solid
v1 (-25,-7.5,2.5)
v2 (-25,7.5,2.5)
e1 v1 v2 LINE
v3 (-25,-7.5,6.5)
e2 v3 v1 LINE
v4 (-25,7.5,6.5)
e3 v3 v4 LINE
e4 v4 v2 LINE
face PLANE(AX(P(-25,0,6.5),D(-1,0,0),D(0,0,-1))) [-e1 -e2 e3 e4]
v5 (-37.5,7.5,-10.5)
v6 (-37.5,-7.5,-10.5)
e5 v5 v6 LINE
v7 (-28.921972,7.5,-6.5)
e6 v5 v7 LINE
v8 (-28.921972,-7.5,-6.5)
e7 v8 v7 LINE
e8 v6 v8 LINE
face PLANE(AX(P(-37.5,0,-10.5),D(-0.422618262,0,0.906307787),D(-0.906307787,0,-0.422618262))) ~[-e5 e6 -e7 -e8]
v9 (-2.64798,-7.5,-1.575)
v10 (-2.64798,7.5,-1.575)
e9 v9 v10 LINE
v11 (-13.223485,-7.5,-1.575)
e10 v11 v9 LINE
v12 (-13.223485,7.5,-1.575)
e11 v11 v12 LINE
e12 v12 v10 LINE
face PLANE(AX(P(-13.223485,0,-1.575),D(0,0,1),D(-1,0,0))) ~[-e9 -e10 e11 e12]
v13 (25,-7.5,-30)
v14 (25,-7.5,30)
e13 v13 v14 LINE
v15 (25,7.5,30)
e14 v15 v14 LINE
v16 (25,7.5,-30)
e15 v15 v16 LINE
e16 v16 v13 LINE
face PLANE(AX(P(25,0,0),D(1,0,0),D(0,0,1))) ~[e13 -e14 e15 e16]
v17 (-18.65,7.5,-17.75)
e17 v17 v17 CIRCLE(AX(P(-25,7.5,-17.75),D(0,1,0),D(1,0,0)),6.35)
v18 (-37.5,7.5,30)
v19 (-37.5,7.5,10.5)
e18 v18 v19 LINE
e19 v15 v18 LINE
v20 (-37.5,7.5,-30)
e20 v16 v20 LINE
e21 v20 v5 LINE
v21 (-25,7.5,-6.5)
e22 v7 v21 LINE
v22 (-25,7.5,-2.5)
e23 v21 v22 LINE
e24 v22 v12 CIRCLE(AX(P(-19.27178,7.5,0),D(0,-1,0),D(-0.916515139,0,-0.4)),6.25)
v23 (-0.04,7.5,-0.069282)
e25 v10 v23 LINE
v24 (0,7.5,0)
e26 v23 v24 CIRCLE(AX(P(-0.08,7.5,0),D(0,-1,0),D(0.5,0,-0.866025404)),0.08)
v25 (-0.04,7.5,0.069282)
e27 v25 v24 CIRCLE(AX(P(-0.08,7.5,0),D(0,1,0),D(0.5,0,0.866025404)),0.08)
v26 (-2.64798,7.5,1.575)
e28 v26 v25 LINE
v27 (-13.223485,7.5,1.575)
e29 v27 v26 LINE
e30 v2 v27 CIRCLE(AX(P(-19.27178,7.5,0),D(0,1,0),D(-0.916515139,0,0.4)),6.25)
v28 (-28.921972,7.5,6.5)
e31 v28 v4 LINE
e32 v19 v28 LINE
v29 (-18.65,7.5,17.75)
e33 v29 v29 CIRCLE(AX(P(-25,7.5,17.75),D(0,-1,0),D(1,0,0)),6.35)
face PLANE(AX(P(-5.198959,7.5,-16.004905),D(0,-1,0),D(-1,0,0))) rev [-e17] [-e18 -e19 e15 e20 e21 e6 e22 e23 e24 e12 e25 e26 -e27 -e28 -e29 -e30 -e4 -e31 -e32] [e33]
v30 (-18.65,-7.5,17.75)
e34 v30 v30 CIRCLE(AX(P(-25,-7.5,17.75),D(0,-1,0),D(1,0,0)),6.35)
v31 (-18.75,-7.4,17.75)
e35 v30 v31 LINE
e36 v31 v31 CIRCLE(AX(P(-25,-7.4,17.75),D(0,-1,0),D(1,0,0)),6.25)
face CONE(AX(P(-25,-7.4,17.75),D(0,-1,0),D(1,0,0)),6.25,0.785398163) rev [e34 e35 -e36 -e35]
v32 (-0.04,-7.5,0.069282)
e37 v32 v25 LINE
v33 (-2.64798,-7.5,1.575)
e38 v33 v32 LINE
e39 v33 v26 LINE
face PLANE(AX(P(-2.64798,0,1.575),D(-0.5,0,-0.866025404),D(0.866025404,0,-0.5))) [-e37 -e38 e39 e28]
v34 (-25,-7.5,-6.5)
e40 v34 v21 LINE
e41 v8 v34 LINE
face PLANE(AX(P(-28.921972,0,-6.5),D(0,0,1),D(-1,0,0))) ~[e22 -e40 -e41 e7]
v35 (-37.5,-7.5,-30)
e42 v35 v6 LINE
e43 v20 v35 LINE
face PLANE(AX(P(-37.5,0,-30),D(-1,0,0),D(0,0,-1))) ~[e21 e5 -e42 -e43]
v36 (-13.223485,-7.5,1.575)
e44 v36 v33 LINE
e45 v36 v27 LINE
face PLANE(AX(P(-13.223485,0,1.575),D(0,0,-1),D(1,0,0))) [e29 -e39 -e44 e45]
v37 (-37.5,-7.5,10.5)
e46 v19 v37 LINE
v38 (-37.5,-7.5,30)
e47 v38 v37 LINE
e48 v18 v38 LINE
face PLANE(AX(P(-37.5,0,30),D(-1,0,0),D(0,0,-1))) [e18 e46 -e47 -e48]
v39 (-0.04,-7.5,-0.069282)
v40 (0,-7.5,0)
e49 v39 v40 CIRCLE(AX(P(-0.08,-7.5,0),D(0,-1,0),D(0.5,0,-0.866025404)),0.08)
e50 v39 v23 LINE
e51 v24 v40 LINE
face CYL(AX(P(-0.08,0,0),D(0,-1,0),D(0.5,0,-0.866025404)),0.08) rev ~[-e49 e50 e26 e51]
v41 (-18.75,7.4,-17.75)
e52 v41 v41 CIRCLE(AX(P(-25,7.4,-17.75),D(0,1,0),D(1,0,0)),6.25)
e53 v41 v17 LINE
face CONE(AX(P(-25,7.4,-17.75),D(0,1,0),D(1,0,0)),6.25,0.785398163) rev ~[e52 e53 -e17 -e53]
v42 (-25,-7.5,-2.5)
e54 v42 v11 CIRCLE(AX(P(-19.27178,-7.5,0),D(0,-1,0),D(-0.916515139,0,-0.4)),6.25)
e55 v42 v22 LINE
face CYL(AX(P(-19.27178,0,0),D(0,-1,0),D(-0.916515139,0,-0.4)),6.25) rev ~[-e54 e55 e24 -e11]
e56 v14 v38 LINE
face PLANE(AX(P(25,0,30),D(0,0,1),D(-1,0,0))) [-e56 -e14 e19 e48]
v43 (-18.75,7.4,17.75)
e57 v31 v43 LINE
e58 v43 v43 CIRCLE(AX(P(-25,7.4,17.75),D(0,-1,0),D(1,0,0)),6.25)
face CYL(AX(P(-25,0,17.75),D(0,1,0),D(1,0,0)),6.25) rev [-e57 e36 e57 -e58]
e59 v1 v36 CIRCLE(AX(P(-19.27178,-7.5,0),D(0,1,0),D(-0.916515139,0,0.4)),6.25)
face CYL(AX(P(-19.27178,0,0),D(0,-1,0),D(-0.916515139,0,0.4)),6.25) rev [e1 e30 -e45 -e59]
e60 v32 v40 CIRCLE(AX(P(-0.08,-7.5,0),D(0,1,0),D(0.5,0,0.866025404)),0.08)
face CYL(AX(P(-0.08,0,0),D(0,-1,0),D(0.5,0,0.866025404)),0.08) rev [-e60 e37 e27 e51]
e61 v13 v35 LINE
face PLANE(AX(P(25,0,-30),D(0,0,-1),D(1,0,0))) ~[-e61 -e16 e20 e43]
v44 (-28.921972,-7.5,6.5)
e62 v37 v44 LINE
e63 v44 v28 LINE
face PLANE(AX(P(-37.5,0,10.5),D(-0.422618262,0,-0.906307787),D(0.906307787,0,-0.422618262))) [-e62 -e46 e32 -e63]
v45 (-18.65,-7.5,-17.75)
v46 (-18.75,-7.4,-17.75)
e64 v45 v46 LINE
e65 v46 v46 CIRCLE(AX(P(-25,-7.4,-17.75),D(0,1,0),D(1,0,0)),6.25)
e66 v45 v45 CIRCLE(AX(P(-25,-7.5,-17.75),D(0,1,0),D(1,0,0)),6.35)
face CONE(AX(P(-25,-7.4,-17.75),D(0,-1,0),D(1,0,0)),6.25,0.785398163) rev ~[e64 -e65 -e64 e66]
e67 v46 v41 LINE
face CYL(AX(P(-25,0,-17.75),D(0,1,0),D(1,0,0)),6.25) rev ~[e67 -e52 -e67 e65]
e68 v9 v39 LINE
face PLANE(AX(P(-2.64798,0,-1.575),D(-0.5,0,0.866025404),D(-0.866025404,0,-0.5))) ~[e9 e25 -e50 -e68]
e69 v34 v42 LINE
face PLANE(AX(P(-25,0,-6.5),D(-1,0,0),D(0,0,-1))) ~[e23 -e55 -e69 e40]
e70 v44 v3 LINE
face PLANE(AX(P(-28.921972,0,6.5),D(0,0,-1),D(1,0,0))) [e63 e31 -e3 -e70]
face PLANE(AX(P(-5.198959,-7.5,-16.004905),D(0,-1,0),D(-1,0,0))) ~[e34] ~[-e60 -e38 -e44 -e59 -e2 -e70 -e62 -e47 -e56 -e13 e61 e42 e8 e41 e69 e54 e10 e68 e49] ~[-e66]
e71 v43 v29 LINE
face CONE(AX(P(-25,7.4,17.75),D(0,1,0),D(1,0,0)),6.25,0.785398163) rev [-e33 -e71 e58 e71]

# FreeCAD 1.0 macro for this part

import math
import FreeCAD as App
import Part
import Sketcher
Q = App.Units.Quantity


def edges_at(feature, points):
    """Names of the edges that pass closest to the given points."""
    edges = feature.Shape.Edges
    near = lambda p: min(range(len(edges)), key=lambda i: edges[i].distToShape(Part.Vertex(*p))[0])
    return sorted({f"Edge{near(p) + 1}" for p in points})

doc = App.newDocument("Part")
body = doc.addObject("PartDesign::Body", "Body")

# Sketch on XZ plane
sketch1 = doc.addObject("Sketcher::SketchObject", "Sketch")
body.addObject(sketch1)
sketch1.AttachmentSupport = (doc.XZ_Plane, [""])
sketch1.MapMode = "FlatFace"
sketch1.addGeometry(Part.ArcOfCircle(Part.Circle(App.Vector(-0.08, 0, 0), App.Vector(0, 0, 1), 0.08), math.radians(0), math.radians(60)), False)
sketch1.addGeometry(Part.LineSegment(App.Vector(0, 0, 0), App.Vector(25, 0, 0)), False)
sketch1.addGeometry(Part.LineSegment(App.Vector(25, 0, 0), App.Vector(25, 30, 0)), False)
sketch1.addGeometry(Part.LineSegment(App.Vector(25, 30, 0), App.Vector(-37.5, 30, 0)), False)
sketch1.addGeometry(Part.LineSegment(App.Vector(-37.5, 30, 0), App.Vector(-37.5, 10.5, 0)), False)
sketch1.addGeometry(Part.LineSegment(App.Vector(-37.5, 10.5, 0), App.Vector(-28.921972, 6.5, 0)), False)
sketch1.addGeometry(Part.LineSegment(App.Vector(-28.921972, 6.5, 0), App.Vector(-25, 6.5, 0)), False)
sketch1.addGeometry(Part.LineSegment(App.Vector(-25, 6.5, 0), App.Vector(-25, 2.5, 0)), False)
sketch1.addGeometry(Part.ArcOfCircle(Part.Circle(App.Vector(-19.27178, 0, 0), App.Vector(0, 0, 1), 6.25), math.radians(14.595894), math.radians(156.421822)), False)
sketch1.addGeometry(Part.LineSegment(App.Vector(-13.223485, 1.575, 0), App.Vector(-2.64798, 1.575, 0)), False)
sketch1.addGeometry(Part.LineSegment(App.Vector(-2.64798, 1.575, 0), App.Vector(-0.04, 0.069282, 0)), False)
sketch1.addGeometry(Part.Circle(App.Vector(-25, 17.75, 0), App.Vector(0, 0, 1), 6.25), False)
sketch1.addConstraint(Sketcher.Constraint("Coincident", 0, 1, 1, 1))
sketch1.addConstraint(Sketcher.Constraint("Coincident", 1, 2, 2, 1))
sketch1.addConstraint(Sketcher.Constraint("Coincident", 2, 2, 3, 1))
sketch1.addConstraint(Sketcher.Constraint("Coincident", 3, 2, 4, 1))
sketch1.addConstraint(Sketcher.Constraint("Coincident", 4, 2, 5, 1))
sketch1.addConstraint(Sketcher.Constraint("Coincident", 5, 2, 6, 1))
sketch1.addConstraint(Sketcher.Constraint("Coincident", 6, 2, 7, 1))
sketch1.addConstraint(Sketcher.Constraint("Coincident", 7, 2, 8, 2))
sketch1.addConstraint(Sketcher.Constraint("Coincident", 8, 1, 9, 1))
sketch1.addConstraint(Sketcher.Constraint("Coincident", 9, 2, 10, 1))
sketch1.addConstraint(Sketcher.Constraint("Tangent", 10, 2, 0, 2))
sketch1.addConstraint(Sketcher.Constraint("Horizontal", 1))
sketch1.addConstraint(Sketcher.Constraint("Vertical", 2))
sketch1.addConstraint(Sketcher.Constraint("Horizontal", 3))
sketch1.addConstraint(Sketcher.Constraint("Vertical", 4))
sketch1.addConstraint(Sketcher.Constraint("Horizontal", 6))
sketch1.addConstraint(Sketcher.Constraint("Vertical", 7))
sketch1.addConstraint(Sketcher.Constraint("Horizontal", 9))
sketch1.addConstraint(Sketcher.Constraint("Coincident", 0, 1, -1, 1))
sketch1.addConstraint(Sketcher.Constraint("Equal", 8, 11))
sketch1.addConstraint(Sketcher.Constraint("PointOnObject", 0, 3, -1))
sketch1.addConstraint(Sketcher.Constraint("PointOnObject", 8, 3, -1))
sketch1.addConstraint(Sketcher.Constraint("Vertical", 11, 3, 6, 2))
sketch1.addConstraint(Sketcher.Constraint("Diameter", 11, 12.5))
sketch1.addConstraint(Sketcher.Constraint("DistanceX", 1, 1, 1, 2, 25.0))
sketch1.addConstraint(Sketcher.Constraint("DistanceY", 2, 1, 2, 2, 30.0))
sketch1.addConstraint(Sketcher.Constraint("DistanceY", 7, 2, 7, 1, 4.0))
sketch1.addConstraint(Sketcher.Constraint("Angle", 5, Q("-25 deg")))
sketch1.addConstraint(Sketcher.Constraint("Angle", 10, Q("-30 deg")))
sketch1.addConstraint(Sketcher.Constraint("Radius", 0, 0.08))
sketch1.addConstraint(Sketcher.Constraint("DistanceX", 3, 2, 3, 1, 62.5))
sketch1.addConstraint(Sketcher.Constraint("DistanceY", 4, 2, 4, 1, 19.5))
sketch1.addConstraint(Sketcher.Constraint("DistanceX", 11, 3, -1, 1, 25.0))
sketch1.addConstraint(Sketcher.Constraint("DistanceY", 5, 2, 4, 2, 4.0))
sketch1.addConstraint(Sketcher.Constraint("DistanceY", -1, 1, 11, 3, 17.75))
sketch1.addConstraint(Sketcher.Constraint("DistanceY", -1, 1, 8, 1, 1.575))
pad1 = doc.addObject("PartDesign::Pad", "Pad")
body.addObject(pad1)
pad1.Profile = sketch1
pad1.Length = 15
pad1.Midplane = True
body2 = doc.addObject("PartDesign::Body", "Body001")
doc.recompute()

body2.BaseFeature = body
doc.recompute()

mirroring = doc.addObject("Part::Mirroring", "Mirroring")
mirroring.Source = body
mirroring.Base = App.Vector(12.5, 0, 0)
mirroring.Normal = App.Vector(0, 0, -1)
body3 = doc.addObject("PartDesign::Body", "Body002")
body3.BaseFeature = mirroring
boolean = doc.addObject("PartDesign::Boolean", "Boolean")
body2.addObject(boolean)
boolean.Type = "Fuse"
boolean.addObjects([body3])
doc.recompute()

chamfer = doc.addObject("PartDesign::Chamfer", "Chamfer")
body2.addObject(chamfer)
chamfer.Base = (boolean, edges_at(boolean, [
    (-31.25, -7.5, 17.75),
    (-31.25, -7.5, -17.75),
    (-31.25, 7.5, 17.75),
    (-31.25, 7.5, -17.75),
]))
chamfer.Size = 0.1
mirroring.Visibility = False

doc.recompute()
